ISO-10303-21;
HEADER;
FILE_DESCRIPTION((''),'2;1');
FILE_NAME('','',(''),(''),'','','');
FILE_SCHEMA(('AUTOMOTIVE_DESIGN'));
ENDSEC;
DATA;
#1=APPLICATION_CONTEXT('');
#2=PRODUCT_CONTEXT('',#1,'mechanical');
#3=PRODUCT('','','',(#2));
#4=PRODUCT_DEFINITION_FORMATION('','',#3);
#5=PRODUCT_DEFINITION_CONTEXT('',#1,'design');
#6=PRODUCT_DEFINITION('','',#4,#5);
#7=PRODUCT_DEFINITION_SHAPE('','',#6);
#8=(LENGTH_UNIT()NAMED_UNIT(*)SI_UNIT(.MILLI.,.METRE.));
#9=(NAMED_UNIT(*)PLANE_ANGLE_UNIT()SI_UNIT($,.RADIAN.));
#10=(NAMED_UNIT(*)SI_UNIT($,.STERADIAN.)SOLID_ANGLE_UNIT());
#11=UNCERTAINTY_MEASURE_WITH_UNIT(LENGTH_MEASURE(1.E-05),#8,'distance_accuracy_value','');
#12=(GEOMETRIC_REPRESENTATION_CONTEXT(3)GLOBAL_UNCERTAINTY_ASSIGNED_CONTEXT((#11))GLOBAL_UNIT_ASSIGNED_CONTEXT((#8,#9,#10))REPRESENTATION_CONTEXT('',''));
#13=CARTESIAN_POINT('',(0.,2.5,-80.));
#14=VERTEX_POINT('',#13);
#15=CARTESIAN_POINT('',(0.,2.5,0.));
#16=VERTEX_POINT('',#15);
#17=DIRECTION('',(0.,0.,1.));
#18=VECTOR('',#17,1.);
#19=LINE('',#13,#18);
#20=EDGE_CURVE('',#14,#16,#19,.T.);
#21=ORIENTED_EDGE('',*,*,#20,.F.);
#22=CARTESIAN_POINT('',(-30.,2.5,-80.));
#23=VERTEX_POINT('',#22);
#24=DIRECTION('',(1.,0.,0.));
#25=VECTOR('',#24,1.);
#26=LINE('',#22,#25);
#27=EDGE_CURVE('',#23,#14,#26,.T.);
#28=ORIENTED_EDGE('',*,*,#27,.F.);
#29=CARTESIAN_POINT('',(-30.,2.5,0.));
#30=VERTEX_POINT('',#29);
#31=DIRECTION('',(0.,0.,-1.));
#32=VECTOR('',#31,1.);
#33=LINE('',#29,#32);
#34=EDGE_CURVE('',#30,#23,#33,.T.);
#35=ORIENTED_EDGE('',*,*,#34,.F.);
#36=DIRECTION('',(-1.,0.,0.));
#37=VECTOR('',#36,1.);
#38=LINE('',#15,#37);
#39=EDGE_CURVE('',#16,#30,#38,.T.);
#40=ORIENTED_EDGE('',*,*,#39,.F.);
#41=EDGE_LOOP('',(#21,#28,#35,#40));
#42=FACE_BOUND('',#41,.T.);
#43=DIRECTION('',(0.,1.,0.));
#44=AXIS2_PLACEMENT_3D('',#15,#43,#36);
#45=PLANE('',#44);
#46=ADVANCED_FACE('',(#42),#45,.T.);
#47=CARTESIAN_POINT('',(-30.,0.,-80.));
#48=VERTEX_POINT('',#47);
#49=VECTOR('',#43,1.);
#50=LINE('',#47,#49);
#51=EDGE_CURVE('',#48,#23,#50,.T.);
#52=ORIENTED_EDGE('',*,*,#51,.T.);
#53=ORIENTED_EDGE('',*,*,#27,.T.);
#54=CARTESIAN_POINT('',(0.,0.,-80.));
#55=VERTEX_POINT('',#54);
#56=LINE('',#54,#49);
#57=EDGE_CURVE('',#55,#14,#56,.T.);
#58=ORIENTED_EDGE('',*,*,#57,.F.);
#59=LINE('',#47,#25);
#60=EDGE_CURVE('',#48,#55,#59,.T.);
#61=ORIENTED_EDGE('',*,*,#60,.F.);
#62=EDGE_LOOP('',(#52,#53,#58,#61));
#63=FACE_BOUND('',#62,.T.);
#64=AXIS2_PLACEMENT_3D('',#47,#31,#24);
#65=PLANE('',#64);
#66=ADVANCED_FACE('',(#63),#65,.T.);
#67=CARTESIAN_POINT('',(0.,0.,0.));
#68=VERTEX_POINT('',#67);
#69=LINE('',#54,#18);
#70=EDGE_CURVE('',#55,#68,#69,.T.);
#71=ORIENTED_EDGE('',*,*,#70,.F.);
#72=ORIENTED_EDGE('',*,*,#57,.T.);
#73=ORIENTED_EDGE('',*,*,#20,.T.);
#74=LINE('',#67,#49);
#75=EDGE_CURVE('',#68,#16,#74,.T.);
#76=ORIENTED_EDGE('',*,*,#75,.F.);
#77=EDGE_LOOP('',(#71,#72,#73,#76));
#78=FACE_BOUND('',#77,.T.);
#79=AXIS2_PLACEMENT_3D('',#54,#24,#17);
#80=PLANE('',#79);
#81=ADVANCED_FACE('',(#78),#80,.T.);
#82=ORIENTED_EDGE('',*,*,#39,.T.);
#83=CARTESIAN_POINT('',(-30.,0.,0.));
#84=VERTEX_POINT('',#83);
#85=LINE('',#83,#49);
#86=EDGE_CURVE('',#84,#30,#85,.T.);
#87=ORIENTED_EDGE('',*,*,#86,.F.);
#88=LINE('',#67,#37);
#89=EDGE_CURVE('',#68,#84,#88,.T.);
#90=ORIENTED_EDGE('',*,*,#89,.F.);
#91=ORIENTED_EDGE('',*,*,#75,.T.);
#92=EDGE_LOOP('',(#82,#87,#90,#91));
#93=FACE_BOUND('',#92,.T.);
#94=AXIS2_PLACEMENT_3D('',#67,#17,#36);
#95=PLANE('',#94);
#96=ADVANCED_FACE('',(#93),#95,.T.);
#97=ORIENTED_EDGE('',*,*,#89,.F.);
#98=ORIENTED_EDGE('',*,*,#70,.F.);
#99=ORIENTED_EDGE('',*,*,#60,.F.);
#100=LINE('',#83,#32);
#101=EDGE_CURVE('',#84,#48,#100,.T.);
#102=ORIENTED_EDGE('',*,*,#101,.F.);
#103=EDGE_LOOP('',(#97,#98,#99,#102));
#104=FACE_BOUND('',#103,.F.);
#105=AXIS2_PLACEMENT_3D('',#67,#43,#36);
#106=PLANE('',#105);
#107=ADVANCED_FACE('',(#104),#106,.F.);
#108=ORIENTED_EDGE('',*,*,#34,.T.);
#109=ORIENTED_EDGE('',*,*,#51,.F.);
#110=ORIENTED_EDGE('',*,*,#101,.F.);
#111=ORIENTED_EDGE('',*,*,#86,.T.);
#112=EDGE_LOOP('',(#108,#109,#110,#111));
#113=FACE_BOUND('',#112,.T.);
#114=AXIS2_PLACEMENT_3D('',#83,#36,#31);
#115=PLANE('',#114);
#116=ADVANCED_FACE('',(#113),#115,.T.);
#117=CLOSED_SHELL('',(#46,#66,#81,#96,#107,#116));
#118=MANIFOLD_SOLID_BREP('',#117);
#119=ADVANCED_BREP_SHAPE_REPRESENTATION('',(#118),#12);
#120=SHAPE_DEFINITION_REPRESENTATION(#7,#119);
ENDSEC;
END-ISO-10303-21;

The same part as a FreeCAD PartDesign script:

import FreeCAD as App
import Part
import Sketcher
Q = App.Units.Quantity


def add_polygon(sketch, points):
    """Adds a closed chain of lines whose ends are joined by coincident constraints."""
    first, n = sketch.GeometryCount, len(points)
    for a, b in zip(points, points[1:] + points[:1]):
        sketch.addGeometry(Part.LineSegment(App.Vector(*a, 0), App.Vector(*b, 0)), False)
    for i in range(n):
        sketch.addConstraint(Sketcher.Constraint("Coincident", first + i, 2, first + (i + 1) % n, 1))

doc = App.newDocument("Part")
body = doc.addObject("PartDesign::Body", "Body")

# Sketch on XZ plane
sketch1 = body.newObject("Sketcher::SketchObject", "Sketch")
sketch1.AttachmentSupport = (doc.getObject("XZ_Plane"), [""])
sketch1.MapMode = "FlatFace"
add_polygon(sketch1, [(-30, 0), (0, 0), (0, -80), (-30, -80)])  # lines 0-3
sketch1.addConstraint([
    Sketcher.Constraint("Horizontal", 0),
    Sketcher.Constraint("Vertical", 1),
    Sketcher.Constraint("Horizontal", 2),
    Sketcher.Constraint("Vertical", 3),
    Sketcher.Constraint("Coincident", 0, 2, -1, 1),
    Sketcher.Constraint("DistanceX", 0, 1, 0, 2, Q("30 mm")),
    Sketcher.Constraint("DistanceY", 1, 2, 1, 1, Q("80 mm")),
])
pad1 = body.newObject("PartDesign::Pad", "Pad")
pad1.Profile = sketch1
pad1.Length = 2.5
pad1.Reversed = True

doc.recompute()
